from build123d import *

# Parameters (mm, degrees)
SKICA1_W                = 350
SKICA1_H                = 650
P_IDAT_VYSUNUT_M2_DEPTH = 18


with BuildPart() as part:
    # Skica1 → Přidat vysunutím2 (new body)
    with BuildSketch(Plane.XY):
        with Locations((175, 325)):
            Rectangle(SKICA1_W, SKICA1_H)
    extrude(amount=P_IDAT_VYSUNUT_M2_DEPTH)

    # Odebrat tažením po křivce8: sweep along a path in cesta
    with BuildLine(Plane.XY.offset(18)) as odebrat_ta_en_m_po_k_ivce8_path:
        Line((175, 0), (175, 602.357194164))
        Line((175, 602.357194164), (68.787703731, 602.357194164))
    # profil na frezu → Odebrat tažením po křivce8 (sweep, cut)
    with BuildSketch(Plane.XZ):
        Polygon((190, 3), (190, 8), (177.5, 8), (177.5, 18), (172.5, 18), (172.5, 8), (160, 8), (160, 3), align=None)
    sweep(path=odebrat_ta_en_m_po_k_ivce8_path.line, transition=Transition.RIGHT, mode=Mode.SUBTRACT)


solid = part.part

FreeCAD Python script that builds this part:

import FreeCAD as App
import Part
import Sketcher
Q = App.Units.Quantity


def add_polygon(sketch, points):
    """Adds a closed chain of lines whose ends are joined by coincident constraints."""
    first, n = sketch.GeometryCount, len(points)
    for a, b in zip(points, points[1:] + points[:1]):
        sketch.addGeometry(Part.LineSegment(App.Vector(*a, 0), App.Vector(*b, 0)), False)
    for i in range(n):
        sketch.addConstraint(Sketcher.Constraint("Coincident", first + i, 2, first + (i + 1) % n, 1))

doc = App.newDocument("Part")
body = doc.addObject("PartDesign::Body", "Body")

sketch1 = body.newObject("Sketcher::SketchObject", "Sketch")
sketch1.AttachmentSupport = (doc.getObject("XY_Plane"), [""])
sketch1.MapMode = "FlatFace"
add_polygon(sketch1, [(0, 650), (0, 0), (350, 0), (350, 650)])
sketch1.addConstraint([
    Sketcher.Constraint("Vertical", 0),
    Sketcher.Constraint("Horizontal", 1),
    Sketcher.Constraint("Vertical", 2),
    Sketcher.Constraint("Horizontal", 3),
    Sketcher.Constraint("Coincident", 0, 2, -1, 1),
    Sketcher.Constraint("DistanceX", 1, 1, 1, 2, Q("350 mm")),
    Sketcher.Constraint("DistanceY", 0, 2, 0, 1, Q("650 mm")),
])
pad1 = body.newObject("PartDesign::Pad", "Pad")
pad1.Profile = sketch1
pad1.Length = 18

sketch2 = body.newObject("Sketcher::SketchObject", "Sketch001")
sketch2.AttachmentSupport = (doc.getObject("XZ_Plane"), [""])
sketch2.MapMode = "FlatFace"
add_polygon(sketch2, [(190, 3), (190, 8), (177.5, 8), (177.5, 18), (172.5, 18), (172.5, 8), (160, 8), (160, 3)])
sketch2.addConstraint([
    Sketcher.Constraint("Vertical", 0),
    Sketcher.Constraint("Horizontal", 1),
    Sketcher.Constraint("Vertical", 2),
    Sketcher.Constraint("Horizontal", 3),
    Sketcher.Constraint("Vertical", 4),
    Sketcher.Constraint("Horizontal", 5),
    Sketcher.Constraint("Vertical", 6),
    Sketcher.Constraint("Horizontal", 7),
    Sketcher.Constraint("Horizontal", 1, 2, 4, 2),
    Sketcher.Constraint("Equal", 1, 5),
    Sketcher.Constraint("Equal", 3, 0),
    Sketcher.Constraint("DistanceX", 3, 2, 3, 1, Q("5 mm")),
    Sketcher.Constraint("DistanceX", 7, 1, 7, 2, Q("30 mm")),
    Sketcher.Constraint("DistanceY", 2, 1, 2, 2, Q("10 mm")),
    Sketcher.Constraint("DistanceX", -1, 1, 0, 2, Q("190 mm")),
    Sketcher.Constraint("DistanceY", -1, 1, 0, 2, Q("8 mm")),
])

sketch3 = body.newObject("Sketcher::SketchObject", "Sketch002")
sketch3.AttachmentSupport = (doc.getObject("XY_Plane"), [""])
sketch3.MapMode = "FlatFace"
sketch3.AttachmentOffset = App.Placement(App.Vector(0, 0, 18), App.Rotation())
sketch3.addGeometry([
    Part.LineSegment(App.Vector(175, 0, 0), App.Vector(175, 602.357194, 0)),
    Part.LineSegment(App.Vector(175, 602.357194, 0), App.Vector(68.787704, 602.357194, 0)),
], False)
sketch3.addConstraint([
    Sketcher.Constraint("Coincident", 0, 2, 1, 1),
    Sketcher.Constraint("Vertical", 0),
    Sketcher.Constraint("Horizontal", 1),
    Sketcher.Constraint("PointOnObject", 0, 1, -1),
    Sketcher.Constraint("DistanceX", -1, 1, 0, 1, Q("175 mm")),
    Sketcher.Constraint("DistanceX", 1, 2, 1, 1, Q("106.212296 mm")),
    Sketcher.Constraint("DistanceY", 0, 1, 0, 2, Q("602.357194 mm")),
])
doc.recompute()

subtractivepipe = body.newObject("PartDesign::SubtractivePipe", "SubtractivePipe")
subtractivepipe.Profile = sketch2
subtractivepipe.Spine = (sketch3, ["Edge1", "Edge2"])
subtractivepipe.Transition = "Right corner"

doc.recompute()
